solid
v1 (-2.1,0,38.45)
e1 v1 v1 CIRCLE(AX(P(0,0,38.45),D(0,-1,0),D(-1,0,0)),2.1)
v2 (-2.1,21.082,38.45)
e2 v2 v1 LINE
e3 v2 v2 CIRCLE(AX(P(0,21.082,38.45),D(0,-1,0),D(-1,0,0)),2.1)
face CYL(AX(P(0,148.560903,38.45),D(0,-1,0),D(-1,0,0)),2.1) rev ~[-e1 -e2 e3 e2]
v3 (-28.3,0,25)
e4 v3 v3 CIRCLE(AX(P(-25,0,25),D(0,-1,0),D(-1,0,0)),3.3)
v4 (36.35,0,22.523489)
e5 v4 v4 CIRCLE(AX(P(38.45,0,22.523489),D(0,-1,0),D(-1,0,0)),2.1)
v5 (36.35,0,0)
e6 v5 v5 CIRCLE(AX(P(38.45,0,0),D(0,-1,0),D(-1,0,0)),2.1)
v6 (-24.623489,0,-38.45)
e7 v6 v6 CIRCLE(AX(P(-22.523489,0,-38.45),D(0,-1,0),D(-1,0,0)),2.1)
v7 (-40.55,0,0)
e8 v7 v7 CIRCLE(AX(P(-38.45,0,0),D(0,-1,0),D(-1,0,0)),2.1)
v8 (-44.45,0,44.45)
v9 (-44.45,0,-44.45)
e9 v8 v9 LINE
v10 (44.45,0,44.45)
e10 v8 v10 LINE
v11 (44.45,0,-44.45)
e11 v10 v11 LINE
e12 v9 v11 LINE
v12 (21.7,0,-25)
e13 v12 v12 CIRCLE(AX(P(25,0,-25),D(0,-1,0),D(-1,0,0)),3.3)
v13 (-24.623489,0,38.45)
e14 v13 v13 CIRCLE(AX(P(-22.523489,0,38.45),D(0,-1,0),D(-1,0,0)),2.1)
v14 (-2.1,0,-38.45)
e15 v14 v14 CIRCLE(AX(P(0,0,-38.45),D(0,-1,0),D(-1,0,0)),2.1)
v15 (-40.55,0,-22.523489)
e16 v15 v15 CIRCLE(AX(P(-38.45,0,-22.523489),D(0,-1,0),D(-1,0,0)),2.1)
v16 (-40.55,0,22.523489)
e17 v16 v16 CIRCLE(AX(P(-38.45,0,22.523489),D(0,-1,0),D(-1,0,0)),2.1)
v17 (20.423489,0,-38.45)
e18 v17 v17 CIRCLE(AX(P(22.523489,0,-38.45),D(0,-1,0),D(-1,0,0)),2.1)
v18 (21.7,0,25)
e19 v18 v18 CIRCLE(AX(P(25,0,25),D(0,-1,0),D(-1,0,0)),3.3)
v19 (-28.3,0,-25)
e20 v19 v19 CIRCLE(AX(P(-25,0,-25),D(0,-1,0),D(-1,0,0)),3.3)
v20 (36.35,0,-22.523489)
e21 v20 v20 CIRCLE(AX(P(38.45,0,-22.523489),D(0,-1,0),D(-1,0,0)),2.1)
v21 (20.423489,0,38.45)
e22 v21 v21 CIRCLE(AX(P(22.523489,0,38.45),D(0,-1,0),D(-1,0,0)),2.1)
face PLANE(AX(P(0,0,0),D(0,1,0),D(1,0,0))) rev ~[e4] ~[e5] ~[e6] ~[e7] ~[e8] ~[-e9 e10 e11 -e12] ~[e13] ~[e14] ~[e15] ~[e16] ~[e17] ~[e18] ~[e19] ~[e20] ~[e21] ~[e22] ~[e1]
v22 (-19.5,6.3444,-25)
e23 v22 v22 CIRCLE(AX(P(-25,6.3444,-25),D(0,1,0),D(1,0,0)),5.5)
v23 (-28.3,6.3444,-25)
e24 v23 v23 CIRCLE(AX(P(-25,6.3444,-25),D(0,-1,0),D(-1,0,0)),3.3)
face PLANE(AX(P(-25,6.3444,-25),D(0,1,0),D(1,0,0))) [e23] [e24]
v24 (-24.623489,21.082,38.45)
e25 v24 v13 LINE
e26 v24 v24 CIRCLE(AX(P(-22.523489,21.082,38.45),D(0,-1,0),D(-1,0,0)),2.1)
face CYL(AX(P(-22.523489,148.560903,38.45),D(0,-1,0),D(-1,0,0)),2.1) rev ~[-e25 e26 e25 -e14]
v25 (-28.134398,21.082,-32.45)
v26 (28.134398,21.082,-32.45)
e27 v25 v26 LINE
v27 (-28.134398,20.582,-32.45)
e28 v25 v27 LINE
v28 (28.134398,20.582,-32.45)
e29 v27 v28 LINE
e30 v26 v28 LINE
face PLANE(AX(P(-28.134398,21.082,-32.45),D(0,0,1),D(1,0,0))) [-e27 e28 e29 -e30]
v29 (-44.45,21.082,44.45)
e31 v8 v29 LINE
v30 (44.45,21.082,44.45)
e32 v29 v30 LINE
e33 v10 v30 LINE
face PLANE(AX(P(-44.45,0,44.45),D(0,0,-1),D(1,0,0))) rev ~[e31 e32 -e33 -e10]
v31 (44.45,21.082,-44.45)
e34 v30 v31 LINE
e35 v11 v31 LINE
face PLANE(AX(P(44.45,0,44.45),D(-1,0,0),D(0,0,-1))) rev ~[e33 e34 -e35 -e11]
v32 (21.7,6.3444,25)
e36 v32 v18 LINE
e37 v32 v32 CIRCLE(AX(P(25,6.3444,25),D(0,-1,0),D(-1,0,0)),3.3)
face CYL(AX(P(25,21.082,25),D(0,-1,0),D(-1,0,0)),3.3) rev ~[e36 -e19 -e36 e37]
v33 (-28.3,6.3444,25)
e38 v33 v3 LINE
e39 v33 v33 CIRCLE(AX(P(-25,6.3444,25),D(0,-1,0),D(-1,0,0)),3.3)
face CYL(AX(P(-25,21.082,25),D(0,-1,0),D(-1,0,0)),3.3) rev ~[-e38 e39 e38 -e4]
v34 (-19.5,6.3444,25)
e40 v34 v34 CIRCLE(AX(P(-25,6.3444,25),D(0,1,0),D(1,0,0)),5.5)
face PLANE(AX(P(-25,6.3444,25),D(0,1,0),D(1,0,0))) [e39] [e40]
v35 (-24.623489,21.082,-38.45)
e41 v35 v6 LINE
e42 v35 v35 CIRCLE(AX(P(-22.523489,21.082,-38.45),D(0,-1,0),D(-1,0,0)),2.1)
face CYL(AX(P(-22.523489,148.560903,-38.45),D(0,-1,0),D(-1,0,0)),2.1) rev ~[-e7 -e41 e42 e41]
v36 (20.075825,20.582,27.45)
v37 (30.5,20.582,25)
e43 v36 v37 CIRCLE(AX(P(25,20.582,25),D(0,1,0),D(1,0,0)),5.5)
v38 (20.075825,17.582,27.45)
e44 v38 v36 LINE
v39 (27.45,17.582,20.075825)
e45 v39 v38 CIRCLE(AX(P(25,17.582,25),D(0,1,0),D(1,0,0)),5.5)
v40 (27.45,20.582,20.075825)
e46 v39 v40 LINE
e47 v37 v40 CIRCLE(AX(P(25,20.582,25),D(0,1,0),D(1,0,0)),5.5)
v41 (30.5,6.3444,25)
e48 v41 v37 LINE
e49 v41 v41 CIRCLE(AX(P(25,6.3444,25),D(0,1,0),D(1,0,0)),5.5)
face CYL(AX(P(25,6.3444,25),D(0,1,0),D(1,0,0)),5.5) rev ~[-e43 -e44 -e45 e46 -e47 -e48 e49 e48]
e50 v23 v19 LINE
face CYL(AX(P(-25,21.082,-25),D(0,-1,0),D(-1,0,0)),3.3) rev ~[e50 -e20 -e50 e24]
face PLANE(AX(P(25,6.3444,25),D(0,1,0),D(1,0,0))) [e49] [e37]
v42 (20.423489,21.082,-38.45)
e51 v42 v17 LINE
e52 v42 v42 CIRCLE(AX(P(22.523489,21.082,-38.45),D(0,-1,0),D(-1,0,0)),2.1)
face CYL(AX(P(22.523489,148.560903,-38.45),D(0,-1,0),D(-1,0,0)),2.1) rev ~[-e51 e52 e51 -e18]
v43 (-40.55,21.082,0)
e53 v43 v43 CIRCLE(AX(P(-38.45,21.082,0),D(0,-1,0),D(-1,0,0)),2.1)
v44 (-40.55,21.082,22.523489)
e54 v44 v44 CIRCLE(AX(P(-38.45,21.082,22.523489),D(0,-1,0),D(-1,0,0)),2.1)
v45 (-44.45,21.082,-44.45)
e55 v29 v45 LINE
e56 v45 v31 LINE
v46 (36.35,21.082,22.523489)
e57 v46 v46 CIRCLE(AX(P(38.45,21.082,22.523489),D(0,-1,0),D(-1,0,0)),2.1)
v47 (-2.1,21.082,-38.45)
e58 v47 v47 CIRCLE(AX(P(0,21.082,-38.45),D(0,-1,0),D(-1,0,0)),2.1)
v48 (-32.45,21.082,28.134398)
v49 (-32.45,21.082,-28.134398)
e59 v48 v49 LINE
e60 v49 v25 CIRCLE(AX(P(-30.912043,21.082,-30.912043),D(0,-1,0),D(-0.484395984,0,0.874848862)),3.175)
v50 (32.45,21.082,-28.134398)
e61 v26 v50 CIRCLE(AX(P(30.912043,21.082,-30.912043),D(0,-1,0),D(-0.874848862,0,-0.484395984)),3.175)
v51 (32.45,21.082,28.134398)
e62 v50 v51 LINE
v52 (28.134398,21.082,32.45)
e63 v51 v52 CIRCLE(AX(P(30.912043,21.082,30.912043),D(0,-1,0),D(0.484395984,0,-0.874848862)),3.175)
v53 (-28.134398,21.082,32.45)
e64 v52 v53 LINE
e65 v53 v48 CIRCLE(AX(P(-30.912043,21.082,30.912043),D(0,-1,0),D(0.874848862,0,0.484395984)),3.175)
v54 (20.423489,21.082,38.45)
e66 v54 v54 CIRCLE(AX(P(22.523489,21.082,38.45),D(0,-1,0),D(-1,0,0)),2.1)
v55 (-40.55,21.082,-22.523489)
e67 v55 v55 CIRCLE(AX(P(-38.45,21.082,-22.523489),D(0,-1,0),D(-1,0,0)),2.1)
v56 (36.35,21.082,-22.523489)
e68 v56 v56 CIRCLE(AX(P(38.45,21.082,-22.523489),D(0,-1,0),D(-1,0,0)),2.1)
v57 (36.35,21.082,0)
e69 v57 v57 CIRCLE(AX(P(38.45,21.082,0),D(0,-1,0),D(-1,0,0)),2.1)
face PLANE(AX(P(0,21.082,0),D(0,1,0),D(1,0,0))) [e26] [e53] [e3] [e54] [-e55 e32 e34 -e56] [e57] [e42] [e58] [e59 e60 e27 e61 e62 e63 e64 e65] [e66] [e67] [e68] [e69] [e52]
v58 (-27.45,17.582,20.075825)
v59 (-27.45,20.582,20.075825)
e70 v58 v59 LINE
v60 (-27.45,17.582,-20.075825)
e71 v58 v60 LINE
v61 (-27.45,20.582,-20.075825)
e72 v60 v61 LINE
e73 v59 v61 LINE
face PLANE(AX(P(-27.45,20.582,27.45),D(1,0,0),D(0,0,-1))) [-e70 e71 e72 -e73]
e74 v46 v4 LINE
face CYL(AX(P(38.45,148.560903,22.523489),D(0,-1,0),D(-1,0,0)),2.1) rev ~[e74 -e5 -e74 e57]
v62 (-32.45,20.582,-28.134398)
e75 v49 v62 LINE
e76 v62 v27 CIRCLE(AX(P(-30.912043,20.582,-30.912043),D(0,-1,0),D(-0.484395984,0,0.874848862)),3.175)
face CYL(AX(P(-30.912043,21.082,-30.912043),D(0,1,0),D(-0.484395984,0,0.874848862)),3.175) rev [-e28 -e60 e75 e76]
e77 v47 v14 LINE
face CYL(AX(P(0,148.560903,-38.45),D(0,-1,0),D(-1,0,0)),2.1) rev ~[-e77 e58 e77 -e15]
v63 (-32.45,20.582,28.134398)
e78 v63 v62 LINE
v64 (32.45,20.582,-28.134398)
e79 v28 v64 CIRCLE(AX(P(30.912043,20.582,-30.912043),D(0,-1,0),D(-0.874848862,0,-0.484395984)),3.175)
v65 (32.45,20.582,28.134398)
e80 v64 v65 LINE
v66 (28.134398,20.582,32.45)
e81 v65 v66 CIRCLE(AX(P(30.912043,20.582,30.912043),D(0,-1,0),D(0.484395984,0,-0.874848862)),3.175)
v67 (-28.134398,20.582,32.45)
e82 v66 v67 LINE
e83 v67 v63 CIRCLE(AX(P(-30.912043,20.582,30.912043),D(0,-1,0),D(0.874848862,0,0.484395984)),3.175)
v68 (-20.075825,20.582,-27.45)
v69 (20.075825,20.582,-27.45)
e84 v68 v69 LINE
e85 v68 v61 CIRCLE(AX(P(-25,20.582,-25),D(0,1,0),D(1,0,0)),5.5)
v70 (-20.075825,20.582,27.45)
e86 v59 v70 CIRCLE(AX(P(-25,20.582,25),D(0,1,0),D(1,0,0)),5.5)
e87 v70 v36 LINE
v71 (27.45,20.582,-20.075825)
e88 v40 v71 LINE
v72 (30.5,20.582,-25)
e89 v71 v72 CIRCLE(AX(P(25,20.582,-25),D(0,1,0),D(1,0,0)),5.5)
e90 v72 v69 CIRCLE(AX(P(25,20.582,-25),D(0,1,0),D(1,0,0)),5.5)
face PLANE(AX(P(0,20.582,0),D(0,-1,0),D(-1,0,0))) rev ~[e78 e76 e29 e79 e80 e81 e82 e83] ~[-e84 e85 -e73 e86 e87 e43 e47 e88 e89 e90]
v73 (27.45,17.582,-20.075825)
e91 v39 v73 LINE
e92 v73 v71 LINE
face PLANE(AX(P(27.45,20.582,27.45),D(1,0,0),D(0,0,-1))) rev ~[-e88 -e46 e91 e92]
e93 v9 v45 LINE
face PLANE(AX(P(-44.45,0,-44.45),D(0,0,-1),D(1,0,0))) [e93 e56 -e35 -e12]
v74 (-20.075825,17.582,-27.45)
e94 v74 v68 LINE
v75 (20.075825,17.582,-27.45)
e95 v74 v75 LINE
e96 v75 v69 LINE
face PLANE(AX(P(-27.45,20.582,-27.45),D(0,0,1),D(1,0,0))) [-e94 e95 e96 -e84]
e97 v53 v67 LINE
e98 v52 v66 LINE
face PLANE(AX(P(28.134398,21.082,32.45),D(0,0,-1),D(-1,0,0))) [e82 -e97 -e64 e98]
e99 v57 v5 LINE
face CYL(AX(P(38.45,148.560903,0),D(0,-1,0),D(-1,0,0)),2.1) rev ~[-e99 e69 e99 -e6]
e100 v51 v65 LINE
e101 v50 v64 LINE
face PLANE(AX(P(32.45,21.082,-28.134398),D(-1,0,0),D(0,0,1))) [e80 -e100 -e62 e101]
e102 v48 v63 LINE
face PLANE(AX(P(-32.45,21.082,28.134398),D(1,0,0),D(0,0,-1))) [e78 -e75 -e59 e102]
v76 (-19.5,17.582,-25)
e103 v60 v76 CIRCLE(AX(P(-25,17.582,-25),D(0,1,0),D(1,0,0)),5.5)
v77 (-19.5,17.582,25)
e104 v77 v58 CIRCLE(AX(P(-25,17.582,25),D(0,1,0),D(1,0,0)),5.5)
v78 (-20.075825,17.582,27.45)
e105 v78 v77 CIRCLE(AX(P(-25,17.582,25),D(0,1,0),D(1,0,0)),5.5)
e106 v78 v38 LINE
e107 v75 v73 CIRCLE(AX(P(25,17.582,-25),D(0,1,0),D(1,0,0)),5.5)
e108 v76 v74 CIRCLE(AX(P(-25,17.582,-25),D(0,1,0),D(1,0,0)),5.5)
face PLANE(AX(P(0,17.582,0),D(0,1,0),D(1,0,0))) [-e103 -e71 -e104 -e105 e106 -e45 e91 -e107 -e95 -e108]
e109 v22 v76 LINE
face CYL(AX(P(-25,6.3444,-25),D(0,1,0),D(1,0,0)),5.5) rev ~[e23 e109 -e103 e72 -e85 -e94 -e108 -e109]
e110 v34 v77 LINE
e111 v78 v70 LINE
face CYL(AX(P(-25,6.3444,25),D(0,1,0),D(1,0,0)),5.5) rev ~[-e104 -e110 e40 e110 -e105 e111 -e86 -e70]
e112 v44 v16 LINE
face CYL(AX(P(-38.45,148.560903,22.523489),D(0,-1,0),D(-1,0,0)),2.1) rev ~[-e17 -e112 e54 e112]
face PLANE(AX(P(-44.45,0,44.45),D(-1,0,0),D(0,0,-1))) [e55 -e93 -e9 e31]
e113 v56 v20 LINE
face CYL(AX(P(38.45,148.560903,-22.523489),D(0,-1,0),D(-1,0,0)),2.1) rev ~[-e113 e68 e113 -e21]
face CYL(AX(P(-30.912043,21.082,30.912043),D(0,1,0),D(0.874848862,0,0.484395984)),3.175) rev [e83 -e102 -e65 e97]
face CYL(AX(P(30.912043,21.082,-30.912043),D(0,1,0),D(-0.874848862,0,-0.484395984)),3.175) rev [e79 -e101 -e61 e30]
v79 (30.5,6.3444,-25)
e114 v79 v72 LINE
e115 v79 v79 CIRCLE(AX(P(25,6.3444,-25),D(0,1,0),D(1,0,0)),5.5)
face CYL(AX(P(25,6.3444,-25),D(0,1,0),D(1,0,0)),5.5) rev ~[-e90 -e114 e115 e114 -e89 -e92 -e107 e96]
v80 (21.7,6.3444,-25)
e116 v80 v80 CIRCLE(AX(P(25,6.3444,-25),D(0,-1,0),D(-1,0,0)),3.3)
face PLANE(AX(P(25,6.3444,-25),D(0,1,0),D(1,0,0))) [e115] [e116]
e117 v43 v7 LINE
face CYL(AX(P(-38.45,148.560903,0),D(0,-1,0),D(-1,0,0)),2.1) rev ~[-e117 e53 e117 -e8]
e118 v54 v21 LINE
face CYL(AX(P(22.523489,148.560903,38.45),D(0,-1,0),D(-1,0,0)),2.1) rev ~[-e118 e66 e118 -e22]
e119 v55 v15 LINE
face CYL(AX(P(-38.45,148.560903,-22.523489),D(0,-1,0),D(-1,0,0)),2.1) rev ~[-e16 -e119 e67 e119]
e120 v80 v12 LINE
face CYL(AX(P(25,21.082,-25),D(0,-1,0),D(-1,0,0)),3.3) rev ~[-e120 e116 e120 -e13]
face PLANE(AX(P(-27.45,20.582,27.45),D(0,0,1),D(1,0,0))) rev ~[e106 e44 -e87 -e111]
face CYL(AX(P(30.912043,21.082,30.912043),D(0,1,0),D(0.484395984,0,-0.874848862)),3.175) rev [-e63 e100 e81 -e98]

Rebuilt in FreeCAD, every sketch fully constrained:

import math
import FreeCAD as App
import Part
import Sketcher
from FreeCAD import Vector
Q = App.Units.Quantity


def edges_at(feature, points):
    """Names of the edges that pass closest to the given points."""
    edges = feature.Shape.Edges
    near = lambda p: min(range(len(edges)), key=lambda i: edges[i].distToShape(Part.Vertex(*p))[0])
    return sorted({f"Edge{near(p) + 1}" for p in points})


def add_polygon(sketch, points):
    """Adds a closed chain of lines whose ends are joined by coincident constraints."""
    first, n = sketch.GeometryCount, len(points)
    for a, b in zip(points, points[1:] + points[:1]):
        sketch.addGeometry(Part.LineSegment(App.Vector(*a, 0), App.Vector(*b, 0)), False)
    for i in range(n):
        sketch.addConstraint(Sketcher.Constraint("Coincident", first + i, 2, first + (i + 1) % n, 1))

doc = App.newDocument("Part")
body = doc.addObject("PartDesign::Body", "Body")

# Sketch on XZ plane
sketch1 = doc.addObject("Sketcher::SketchObject", "Sketch")
body.addObject(sketch1)
sketch1.AttachmentSupport = (doc.XZ_Plane, [""])
sketch1.MapMode = "FlatFace"
add_polygon(sketch1, [(-44, -44), (-44, 44), (44, 44), (44, -44)])  # lines 0-3
sketch1.addConstraint([
    Sketcher.Constraint("Vertical", 0),
    Sketcher.Constraint("Horizontal", 1),
    Sketcher.Constraint("Vertical", 2),
    Sketcher.Constraint("Horizontal", 3),
    Sketcher.Constraint("Symmetric", 0, 2, 2, 2, -1, 1),
    Sketcher.Constraint("Equal", 3, 0),
    Sketcher.Constraint("DistanceX", 1, 1, 1, 2, Q("88.9 mm")),
])
pad1 = doc.addObject("PartDesign::Pad", "Pad")
body.addObject(pad1)
pad1.Profile = sketch1
pad1.Length = 21.082
pad1.Reversed = True

# Sketch on XZ plane
sketch2 = doc.addObject("Sketcher::SketchObject", "Sketch001")
body.addObject(sketch2)
sketch2.AttachmentSupport = (doc.XZ_Plane, [""])
sketch2.MapMode = "FlatFace"
sketch2.AttachmentOffset = App.Placement(Vector(0, 0, -21.082), App.Rotation())
sketch2.addGeometry([
    Part.LineSegment(Vector(-28.1, 32.5, 0), Vector(28.1, 32.5, 0)),  # 0
    Part.ArcOfCircle(Part.Circle(Vector(30.9, 30.9, 0), Vector(0, 0, 1), 3.2), math.radians(-61), math.radians(151)),  # 1
    Part.LineSegment(Vector(32.5, 28.1, 0), Vector(32.5, -28.1, 0)),  # 2
    Part.ArcOfCircle(Part.Circle(Vector(30.9, -30.9, 0), Vector(0, 0, 1), 3.2), math.radians(-151), math.radians(61)),  # 3
    Part.LineSegment(Vector(28.1, -32.5, 0), Vector(-28.1, -32.5, 0)),  # 4
    Part.ArcOfCircle(Part.Circle(Vector(-30.9, -30.9, 0), Vector(0, 0, 1), 3.2), math.radians(119), math.radians(331)),  # 5
    Part.LineSegment(Vector(-32.5, -28.1, 0), Vector(-32.5, 28.1, 0)),  # 6
    Part.ArcOfCircle(Part.Circle(Vector(-30.9, 30.9, 0), Vector(0, 0, 1), 3.2), math.radians(29), math.radians(241)),  # 7
], False)
sketch2.addConstraint([
    Sketcher.Constraint("Coincident", 0, 2, 1, 2),
    Sketcher.Constraint("Coincident", 1, 1, 2, 1),
    Sketcher.Constraint("Coincident", 2, 2, 3, 2),
    Sketcher.Constraint("Coincident", 3, 1, 4, 1),
    Sketcher.Constraint("Coincident", 4, 2, 5, 2),
    Sketcher.Constraint("Coincident", 5, 1, 6, 1),
    Sketcher.Constraint("Coincident", 6, 2, 7, 2),
    Sketcher.Constraint("Coincident", 7, 1, 0, 1),
    Sketcher.Constraint("Horizontal", 0),
    Sketcher.Constraint("Vertical", 2),
    Sketcher.Constraint("Horizontal", 4),
    Sketcher.Constraint("Vertical", 6),
    Sketcher.Constraint("Equal", 1, 3),
    Sketcher.Constraint("Equal", 3, 5),
    Sketcher.Constraint("Equal", 5, 7),
    Sketcher.Constraint("Symmetric", 1, 3, 5, 3, -1, 1),
    Sketcher.Constraint("Symmetric", 3, 3, 7, 3, -1, 1),
    Sketcher.Constraint("Symmetric", 3, 3, 5, 3, -2),
    Sketcher.Constraint("Horizontal", 2, 2, 5, 1),
    Sketcher.Constraint("Vertical", 0, 2, 3, 1),
    Sketcher.Constraint("Equal", 4, 2),
    Sketcher.Constraint("Radius", 1, Q("3.175 mm")),
    Sketcher.Constraint("DistanceY", -1, 1, 0, 2, Q("32.45 mm")),
    Sketcher.Constraint("DistanceX", -1, 1, 1, 1, Q("32.45 mm")),
    Sketcher.Constraint("DistanceX", 0, 1, 0, 2, Q("56.268795 mm")),
])
pocket1 = doc.addObject("PartDesign::Pocket", "Pocket")
body.addObject(pocket1)
pocket1.Profile = sketch2
pocket1.Length = 0.5
pocket1.Reversed = True

# Sketch on XZ plane
sketch3 = doc.addObject("Sketcher::SketchObject", "Sketch002")
body.addObject(sketch3)
sketch3.AttachmentSupport = (doc.XZ_Plane, [""])
sketch3.MapMode = "FlatFace"
sketch3.AttachmentOffset = App.Placement(Vector(0, 0, -20.582), App.Rotation())
add_polygon(sketch3, [(-27, -27), (-27, 27), (27, 27), (27, -27)])  # lines 0-3
sketch3.addConstraint([
    Sketcher.Constraint("Vertical", 0),
    Sketcher.Constraint("Horizontal", 1),
    Sketcher.Constraint("Vertical", 2),
    Sketcher.Constraint("Horizontal", 3),
    Sketcher.Constraint("Symmetric", 0, 2, 2, 2, -1, 1),
    Sketcher.Constraint("Equal", 3, 0),
    Sketcher.Constraint("DistanceX", 1, 1, 1, 2, Q("54.9 mm")),
])
pocket2 = doc.addObject("PartDesign::Pocket", "Pocket001")
body.addObject(pocket2)
pocket2.Profile = sketch3
pocket2.Length = 3
pocket2.Reversed = True
doc.recompute()

fillet = doc.addObject("PartDesign::Fillet", "Fillet")
body.addObject(fillet)
fillet.Base = (pocket2, edges_at(pocket2, [
    (27.45, 19.082, 27.45),
    (-27.45, 19.082, 27.45),
    (-27.45, 19.082, -27.45),
    (27.45, 19.082, -27.45),
]))
fillet.Radius = 6.35

# Sketch on XZ plane
sketch4 = doc.addObject("Sketcher::SketchObject", "Sketch003")
body.addObject(sketch4)
sketch4.AttachmentSupport = (doc.XZ_Plane, [""])
sketch4.MapMode = "FlatFace"
sketch4.AttachmentOffset = App.Placement(Vector(0, 0, -21.082), App.Rotation())
sketch4.addGeometry([
    Part.Circle(Vector(-25, -25, 0), Vector(0, 0, 1), 3.3),
    Part.Circle(Vector(25, -25, 0), Vector(0, 0, 1), 3.3),
    Part.Circle(Vector(25, 25, 0), Vector(0, 0, 1), 3.3),
    Part.Circle(Vector(-25, 25, 0), Vector(0, 0, 1), 3.3),
], False)
sketch4.addConstraint([
    Sketcher.Constraint("Equal", 0, 1),
    Sketcher.Constraint("Equal", 1, 2),
    Sketcher.Constraint("Equal", 2, 3),
    Sketcher.Constraint("Symmetric", 0, 3, 2, 3, -1, 1),
    Sketcher.Constraint("Symmetric", 1, 3, 3, 3, -1, 1),
    Sketcher.Constraint("Symmetric", 0, 3, 1, 3, -2),
    Sketcher.Constraint("Diameter", 0, Q("6.6 mm")),
    Sketcher.Constraint("DistanceX", 0, 3, -1, 1, Q("25 mm")),
    Sketcher.Constraint("DistanceY", 0, 3, -1, 1, Q("25 mm")),
])
doc.recompute()
hole = doc.addObject("PartDesign::Hole", "Hole")
body.addObject(hole)
hole.Profile = sketch4
hole.ThreadType = "None"
hole.Diameter = 6.6
hole.DepthType = "ThroughAll"
hole.HoleCutType = "Counterbore"
hole.HoleCutDiameter = 11
hole.HoleCutDepth = 14.7376
hole.Reversed = True

# Sketch on XZ plane
sketch5 = doc.addObject("Sketcher::SketchObject", "Sketch004")
body.addObject(sketch5)
sketch5.AttachmentSupport = (doc.XZ_Plane, [""])
sketch5.MapMode = "FlatFace"
sketch5.AttachmentOffset = App.Placement(Vector(0, 0, -21.082), App.Rotation())
sketch5.addGeometry([
    Part.Circle(Vector(-38.5, -22.5, 0), Vector(0, 0, 1), 2.1),  # 0
    Part.Circle(Vector(-38.5, 0, 0), Vector(0, 0, 1), 2.1),  # 1
    Part.Circle(Vector(-38.5, 22.5, 0), Vector(0, 0, 1), 2.1),  # 2
    Part.Circle(Vector(-22.5, 38.5, 0), Vector(0, 0, 1), 2.1),  # 3
    Part.Circle(Vector(0, 38.5, 0), Vector(0, 0, 1), 2.1),  # 4
    Part.Circle(Vector(22.5, 38.5, 0), Vector(0, 0, 1), 2.1),  # 5
    Part.Circle(Vector(38.5, 22.5, 0), Vector(0, 0, 1), 2.1),  # 6
    Part.Circle(Vector(38.5, 0, 0), Vector(0, 0, 1), 2.1),  # 7
    Part.Circle(Vector(38.5, -22.5, 0), Vector(0, 0, 1), 2.1),  # 8
    Part.Circle(Vector(22.5, -38.5, 0), Vector(0, 0, 1), 2.1),  # 9
    Part.Circle(Vector(0, -38.5, 0), Vector(0, 0, 1), 2.1),  # 10
    Part.Circle(Vector(-22.5, -38.5, 0), Vector(0, 0, 1), 2.1),  # 11
], False)
sketch5.addConstraint([
    Sketcher.Constraint("Equal", 0, 1),
    Sketcher.Constraint("Equal", 1, 2),
    Sketcher.Constraint("Equal", 2, 3),
    Sketcher.Constraint("Equal", 3, 4),
    Sketcher.Constraint("Equal", 4, 5),
    Sketcher.Constraint("Equal", 5, 6),
    Sketcher.Constraint("Equal", 6, 7),
    Sketcher.Constraint("Equal", 7, 8),
    Sketcher.Constraint("Equal", 8, 9),
    Sketcher.Constraint("Equal", 9, 10),
    Sketcher.Constraint("Equal", 10, 11),
    Sketcher.Constraint("Symmetric", 0, 3, 6, 3, -1, 1),
    Sketcher.Constraint("Symmetric", 1, 3, 7, 3, -1, 1),
    Sketcher.Constraint("Symmetric", 2, 3, 8, 3, -1, 1),
    Sketcher.Constraint("Symmetric", 3, 3, 9, 3, -1, 1),
    Sketcher.Constraint("Symmetric", 4, 3, 10, 3, -1, 1),
    Sketcher.Constraint("Symmetric", 5, 3, 11, 3, -1, 1),
    Sketcher.Constraint("Symmetric", 3, 3, 5, 3, -2),
    Sketcher.Constraint("Symmetric", 2, 3, 6, 3, -2),
    Sketcher.Constraint("PointOnObject", 1, 3, -1),
    Sketcher.Constraint("PointOnObject", 4, 3, -2),
    Sketcher.Constraint("Horizontal", 3, 3, 4, 3),
    Sketcher.Constraint("Vertical", 0, 3, 1, 3),
    Sketcher.Constraint("Diameter", 0, Q("4.2 mm")),
    Sketcher.Constraint("DistanceX", 2, 3, 6, 3, Q("76.9 mm")),
    Sketcher.Constraint("DistanceY", -1, 1, 3, 3, Q("38.45 mm")),
    Sketcher.Constraint("DistanceY", 0, 3, -1, 1, Q("22.523489 mm")),
    Sketcher.Constraint("DistanceX", 3, 3, -1, 1, Q("22.523489 mm")),
])
doc.recompute()
hole2 = doc.addObject("PartDesign::Hole", "Hole001")
body.addObject(hole2)
hole2.Profile = sketch5
hole2.ThreadType = "None"
hole2.Diameter = 4.2
hole2.DepthType = "ThroughAll"
hole2.Reversed = True

doc.recompute()
